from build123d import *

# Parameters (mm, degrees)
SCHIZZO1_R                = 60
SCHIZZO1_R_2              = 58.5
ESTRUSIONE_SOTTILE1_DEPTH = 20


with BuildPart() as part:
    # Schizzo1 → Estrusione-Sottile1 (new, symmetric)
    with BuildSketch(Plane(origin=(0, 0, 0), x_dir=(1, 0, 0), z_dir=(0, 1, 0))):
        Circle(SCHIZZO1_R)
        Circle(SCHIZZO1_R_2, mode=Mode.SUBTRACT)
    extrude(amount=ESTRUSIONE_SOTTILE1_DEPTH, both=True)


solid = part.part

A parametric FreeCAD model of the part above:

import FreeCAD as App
import Part
import Sketcher

doc = App.newDocument("Part")
body = doc.addObject("PartDesign::Body", "Body")

# Sketch on XZ plane
sketch1 = body.newObject("Sketcher::SketchObject", "Sketch")
sketch1.AttachmentSupport = (doc.getObject("XZ_Plane"), [""])
sketch1.MapMode = "FlatFace"
sketch1.addGeometry([
    Part.Circle(App.Vector(0, 0, 0), App.Vector(0, 0, 1), 60),
    Part.Circle(App.Vector(0, 0, 0), App.Vector(0, 0, 1), 58),
], False)
sketch1.addConstraint([
    Sketcher.Constraint("Coincident", 0, 3, -1, 1),
    Sketcher.Constraint("Coincident", 1, 3, -1, 1),
    Sketcher.Constraint("Diameter", 0, 120.0),
    Sketcher.Constraint("Diameter", 1, 117.0),
])
pad1 = body.newObject("PartDesign::Pad", "Pad")
pad1.Profile = sketch1
pad1.Length = 40
pad1.Midplane = True

doc.recompute()
